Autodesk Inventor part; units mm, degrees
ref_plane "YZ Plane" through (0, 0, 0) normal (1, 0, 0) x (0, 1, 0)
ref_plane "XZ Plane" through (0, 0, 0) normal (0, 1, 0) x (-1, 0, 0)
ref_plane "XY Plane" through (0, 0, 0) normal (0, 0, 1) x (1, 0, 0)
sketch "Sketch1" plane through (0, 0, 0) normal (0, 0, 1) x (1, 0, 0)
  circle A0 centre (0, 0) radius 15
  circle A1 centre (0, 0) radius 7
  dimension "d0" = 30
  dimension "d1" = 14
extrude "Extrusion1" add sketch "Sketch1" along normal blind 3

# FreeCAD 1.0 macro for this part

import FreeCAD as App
import Part
import Sketcher
from FreeCAD import Vector

doc = App.newDocument("Part")
body = doc.addObject("PartDesign::Body", "Body")

# Sketch on XY plane
sketch1 = body.newObject("Sketcher::SketchObject", "Sketch")
sketch1.AttachmentSupport = (doc.getObject("XY_Plane"), [""])
sketch1.MapMode = "FlatFace"
sketch1.addGeometry(Part.Circle(Vector(0, 0, 0), Vector(0, 0, 1), 15), False)
sketch1.addGeometry(Part.Circle(Vector(0, 0, 0), Vector(0, 0, 1), 7), False)
sketch1.addConstraint(Sketcher.Constraint("Coincident", 0, 3, -1, 1))
sketch1.addConstraint(Sketcher.Constraint("Coincident", 1, 3, -1, 1))
sketch1.addConstraint(Sketcher.Constraint("Diameter", 0, 30.0))
sketch1.addConstraint(Sketcher.Constraint("Diameter", 1, 14.0))
pad1 = body.newObject("PartDesign::Pad", "Pad")
pad1.Profile = sketch1
pad1.Length = 3

doc.recompute()
